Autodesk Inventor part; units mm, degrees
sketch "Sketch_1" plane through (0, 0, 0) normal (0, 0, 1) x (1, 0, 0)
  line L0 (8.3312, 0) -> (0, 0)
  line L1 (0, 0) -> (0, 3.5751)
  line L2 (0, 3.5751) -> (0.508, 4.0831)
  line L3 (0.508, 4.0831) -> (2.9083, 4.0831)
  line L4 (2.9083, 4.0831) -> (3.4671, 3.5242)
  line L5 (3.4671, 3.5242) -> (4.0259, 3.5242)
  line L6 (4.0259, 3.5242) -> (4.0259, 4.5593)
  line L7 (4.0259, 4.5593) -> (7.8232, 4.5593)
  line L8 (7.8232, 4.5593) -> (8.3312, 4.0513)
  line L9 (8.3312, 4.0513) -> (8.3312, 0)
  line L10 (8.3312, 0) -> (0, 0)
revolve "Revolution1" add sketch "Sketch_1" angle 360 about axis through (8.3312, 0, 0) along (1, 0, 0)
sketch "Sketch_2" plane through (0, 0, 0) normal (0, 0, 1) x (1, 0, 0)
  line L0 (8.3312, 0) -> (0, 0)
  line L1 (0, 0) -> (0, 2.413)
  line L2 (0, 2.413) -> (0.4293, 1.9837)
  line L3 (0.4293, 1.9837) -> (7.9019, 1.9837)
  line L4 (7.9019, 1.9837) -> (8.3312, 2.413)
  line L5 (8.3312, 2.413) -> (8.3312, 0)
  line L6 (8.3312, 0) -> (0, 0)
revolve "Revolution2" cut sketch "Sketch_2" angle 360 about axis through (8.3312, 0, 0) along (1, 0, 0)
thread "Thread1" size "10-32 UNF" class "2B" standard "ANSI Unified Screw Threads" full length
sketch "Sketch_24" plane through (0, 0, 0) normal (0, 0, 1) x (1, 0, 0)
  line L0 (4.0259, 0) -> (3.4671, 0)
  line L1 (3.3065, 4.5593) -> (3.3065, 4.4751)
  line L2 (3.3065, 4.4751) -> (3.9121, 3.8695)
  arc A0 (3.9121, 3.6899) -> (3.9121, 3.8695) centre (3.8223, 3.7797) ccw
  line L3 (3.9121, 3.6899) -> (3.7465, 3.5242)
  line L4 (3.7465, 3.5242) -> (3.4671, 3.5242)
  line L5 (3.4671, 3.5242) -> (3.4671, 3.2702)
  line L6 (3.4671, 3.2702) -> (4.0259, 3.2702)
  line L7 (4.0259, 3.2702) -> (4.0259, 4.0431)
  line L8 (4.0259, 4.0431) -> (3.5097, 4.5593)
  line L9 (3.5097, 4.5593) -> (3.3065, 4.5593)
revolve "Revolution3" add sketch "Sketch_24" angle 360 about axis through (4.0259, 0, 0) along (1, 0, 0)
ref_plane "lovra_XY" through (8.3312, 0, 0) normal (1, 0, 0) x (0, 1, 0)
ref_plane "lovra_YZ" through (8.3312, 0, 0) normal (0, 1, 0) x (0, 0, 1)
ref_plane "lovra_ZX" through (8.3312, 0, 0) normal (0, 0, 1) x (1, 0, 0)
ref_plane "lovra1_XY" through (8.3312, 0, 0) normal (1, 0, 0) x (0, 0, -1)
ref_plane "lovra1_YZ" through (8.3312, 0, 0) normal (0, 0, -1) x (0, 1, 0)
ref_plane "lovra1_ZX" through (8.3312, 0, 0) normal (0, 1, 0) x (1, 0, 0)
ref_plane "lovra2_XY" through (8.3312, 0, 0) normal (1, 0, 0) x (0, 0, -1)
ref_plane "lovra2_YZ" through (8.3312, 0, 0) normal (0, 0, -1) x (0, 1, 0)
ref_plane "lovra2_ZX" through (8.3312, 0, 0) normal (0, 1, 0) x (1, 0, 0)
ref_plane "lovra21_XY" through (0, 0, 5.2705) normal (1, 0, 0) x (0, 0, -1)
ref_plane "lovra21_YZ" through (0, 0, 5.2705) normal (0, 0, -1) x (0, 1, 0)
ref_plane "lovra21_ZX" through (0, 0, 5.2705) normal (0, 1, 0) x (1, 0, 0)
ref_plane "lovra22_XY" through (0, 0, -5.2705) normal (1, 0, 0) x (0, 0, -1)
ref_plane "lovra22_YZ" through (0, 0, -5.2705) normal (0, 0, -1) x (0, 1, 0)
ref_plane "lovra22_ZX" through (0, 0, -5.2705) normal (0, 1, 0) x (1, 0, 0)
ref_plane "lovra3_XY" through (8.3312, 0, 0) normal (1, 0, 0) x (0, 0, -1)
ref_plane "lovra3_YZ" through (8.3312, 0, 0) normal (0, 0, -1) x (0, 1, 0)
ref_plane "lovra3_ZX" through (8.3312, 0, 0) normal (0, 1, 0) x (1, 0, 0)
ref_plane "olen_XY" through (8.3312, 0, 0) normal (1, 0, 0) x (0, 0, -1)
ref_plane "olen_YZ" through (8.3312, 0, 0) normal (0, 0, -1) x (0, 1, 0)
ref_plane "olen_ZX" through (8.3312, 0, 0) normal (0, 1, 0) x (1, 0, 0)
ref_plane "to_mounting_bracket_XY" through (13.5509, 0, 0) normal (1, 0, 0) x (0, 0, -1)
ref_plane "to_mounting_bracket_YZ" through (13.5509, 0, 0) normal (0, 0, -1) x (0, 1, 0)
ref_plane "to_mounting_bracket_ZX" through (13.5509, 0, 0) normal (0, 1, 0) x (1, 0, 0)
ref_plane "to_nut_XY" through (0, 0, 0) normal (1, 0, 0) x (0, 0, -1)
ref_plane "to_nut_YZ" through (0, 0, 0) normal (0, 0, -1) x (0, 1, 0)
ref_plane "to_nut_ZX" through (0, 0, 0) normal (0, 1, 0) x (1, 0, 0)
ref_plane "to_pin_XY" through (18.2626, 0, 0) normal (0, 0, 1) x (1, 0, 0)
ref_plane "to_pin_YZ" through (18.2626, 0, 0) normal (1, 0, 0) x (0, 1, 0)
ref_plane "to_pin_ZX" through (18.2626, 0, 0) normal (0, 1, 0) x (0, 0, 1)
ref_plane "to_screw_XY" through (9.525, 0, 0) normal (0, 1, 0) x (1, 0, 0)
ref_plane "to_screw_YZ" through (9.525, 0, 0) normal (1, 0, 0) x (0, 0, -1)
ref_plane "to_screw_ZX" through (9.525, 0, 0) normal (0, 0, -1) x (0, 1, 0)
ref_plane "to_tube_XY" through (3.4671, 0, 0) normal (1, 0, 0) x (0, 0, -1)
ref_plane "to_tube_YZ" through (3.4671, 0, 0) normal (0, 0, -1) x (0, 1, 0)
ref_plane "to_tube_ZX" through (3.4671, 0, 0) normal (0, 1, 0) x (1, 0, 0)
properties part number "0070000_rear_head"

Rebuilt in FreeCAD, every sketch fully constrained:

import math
import FreeCAD as App
import Part
import Sketcher
Q = App.Units.Quantity


def add_polygon(sketch, points):
    """Adds a closed chain of lines whose ends are joined by coincident constraints."""
    first, n = sketch.GeometryCount, len(points)
    for a, b in zip(points, points[1:] + points[:1]):
        sketch.addGeometry(Part.LineSegment(App.Vector(*a, 0), App.Vector(*b, 0)), False)
    for i in range(n):
        sketch.addConstraint(Sketcher.Constraint("Coincident", first + i, 2, first + (i + 1) % n, 1))

doc = App.newDocument("Part")
body = doc.addObject("PartDesign::Body", "Body")

# Sketch on XY plane
sketch1 = body.newObject("Sketcher::SketchObject", "Sketch")
sketch1.AttachmentSupport = (doc.getObject("XY_Plane"), [""])
sketch1.MapMode = "FlatFace"
add_polygon(sketch1, [(0, 0), (8.3, 0), (8.3, 4.1), (7.8, 4.6), (4, 4.6), (4, 3.5), (3.5, 3.5), (2.9, 4.1), (0.5, 4.1), (0, 3.6)])  # lines 0-9
sketch1.addConstraint([
    Sketcher.Constraint("Horizontal", 0),
    Sketcher.Constraint("Vertical", 1),
    Sketcher.Constraint("Horizontal", 3),
    Sketcher.Constraint("Vertical", 4),
    Sketcher.Constraint("Horizontal", 5),
    Sketcher.Constraint("Horizontal", 7),
    Sketcher.Constraint("Vertical", 9),
    Sketcher.Constraint("Coincident", 9, 2, -1, 1),
    Sketcher.Constraint("Parallel", 2, 6),
    Sketcher.Constraint("Perpendicular", 6, 8),
    Sketcher.Constraint("Equal", 2, 8),
    Sketcher.Constraint("Angle", 2, Q("135 deg")),
    Sketcher.Constraint("DistanceX", 0, 1, 0, 2, Q("0.328 in")),
    Sketcher.Constraint("DistanceX", 5, 2, 5, 1, Q("0.022 in")),
    Sketcher.Constraint("DistanceX", -1, 1, 7, 2, Q("0.02 in")),
    Sketcher.Constraint("DistanceX", 3, 2, 3, 1, Q("0.1495 in")),
    Sketcher.Constraint("DistanceX", 7, 2, 7, 1, Q("0.0945 in")),
    Sketcher.Constraint("DistanceY", 1, 1, 1, 2, Q("0.1595 in")),
    Sketcher.Constraint("DistanceY", 4, 2, 4, 1, 1.035),
])
revolution = body.newObject("PartDesign::Revolution", "Revolution")
revolution.Profile = sketch1
revolution.ReferenceAxis = (sketch1, ["H_Axis"])
revolution.Angle = 360

# Sketch on XY plane
sketch2 = body.newObject("Sketcher::SketchObject", "Sketch001")
sketch2.AttachmentSupport = (doc.getObject("XY_Plane"), [""])
sketch2.MapMode = "FlatFace"
add_polygon(sketch2, [(0, 0), (8.3, 0), (8.3, 2.4), (7.9, 2), (0.4, 2), (0, 2.4)])  # lines 0-5
sketch2.addConstraint([
    Sketcher.Constraint("Horizontal", 0),
    Sketcher.Constraint("Vertical", 1),
    Sketcher.Constraint("Horizontal", 3),
    Sketcher.Constraint("Vertical", 5),
    Sketcher.Constraint("Coincident", 5, 2, -1, 1),
    Sketcher.Constraint("Perpendicular", 2, 4),
    Sketcher.Constraint("Horizontal", 1, 2, 4, 2),
    Sketcher.Constraint("Equal", 2, 4),
    Sketcher.Constraint("DistanceX", 0, 1, 0, 2, Q("0.328 in")),
    Sketcher.Constraint("DistanceY", 1, 1, 1, 2, Q("0.095 in")),
    Sketcher.Constraint("DistanceX", 3, 2, 3, 1, Q("0.2942 in")),
])
groove = body.newObject("PartDesign::Groove", "Groove")
groove.Profile = sketch2
groove.ReferenceAxis = (sketch2, ["H_Axis"])
groove.Angle = 360

# Sketch on XY plane
sketch3 = body.newObject("Sketcher::SketchObject", "Sketch002")
sketch3.AttachmentSupport = (doc.getObject("XY_Plane"), [""])
sketch3.MapMode = "FlatFace"
sketch3.addGeometry([
    Part.LineSegment(App.Vector(3.51, 4.56, 0), App.Vector(3.31, 4.56, 0)),  # 0
    Part.LineSegment(App.Vector(3.31, 4.56, 0), App.Vector(3.31, 4.48, 0)),  # 1
    Part.LineSegment(App.Vector(3.31, 4.48, 0), App.Vector(3.91, 3.87, 0)),  # 2
    Part.ArcOfCircle(Part.Circle(App.Vector(3.82, 3.78, 0), App.Vector(0, 0, 1), 0.13), math.radians(-45), math.radians(45)),  # 3
    Part.LineSegment(App.Vector(3.91, 3.69, 0), App.Vector(3.75, 3.52, 0)),  # 4
    Part.LineSegment(App.Vector(3.75, 3.52, 0), App.Vector(3.47, 3.52, 0)),  # 5
    Part.LineSegment(App.Vector(3.47, 3.52, 0), App.Vector(3.47, 3.27, 0)),  # 6
    Part.LineSegment(App.Vector(3.47, 3.27, 0), App.Vector(4.03, 3.27, 0)),  # 7
    Part.LineSegment(App.Vector(4.03, 3.27, 0), App.Vector(4.03, 4.04, 0)),  # 8
    Part.LineSegment(App.Vector(4.03, 4.04, 0), App.Vector(3.51, 4.56, 0)),  # 9
], False)
sketch3.addConstraint([
    Sketcher.Constraint("Coincident", 0, 2, 1, 1),
    Sketcher.Constraint("Coincident", 1, 2, 2, 1),
    Sketcher.Constraint("Tangent", 2, 2, 3, 2),
    Sketcher.Constraint("Tangent", 3, 1, 4, 1),
    Sketcher.Constraint("Coincident", 4, 2, 5, 1),
    Sketcher.Constraint("Coincident", 5, 2, 6, 1),
    Sketcher.Constraint("Coincident", 6, 2, 7, 1),
    Sketcher.Constraint("Coincident", 7, 2, 8, 1),
    Sketcher.Constraint("Coincident", 8, 2, 9, 1),
    Sketcher.Constraint("Coincident", 9, 2, 0, 1),
    Sketcher.Constraint("Horizontal", 0),
    Sketcher.Constraint("Vertical", 1),
    Sketcher.Constraint("Horizontal", 5),
    Sketcher.Constraint("Vertical", 6),
    Sketcher.Constraint("Horizontal", 7),
    Sketcher.Constraint("Vertical", 8),
    Sketcher.Constraint("Perpendicular", 2, 4),
    Sketcher.Constraint("Perpendicular", 4, 9),
    Sketcher.Constraint("Vertical", 2, 2, 3, 1),
    Sketcher.Constraint("Radius", 3, Q("0.005 in")),
    Sketcher.Constraint("DistanceY", 6, 2, 6, 1, Q("0.01 in")),
    Sketcher.Constraint("DistanceX", 0, 2, 0, 1, Q("0.008 in")),
    Sketcher.Constraint("DistanceX", 5, 2, 5, 1, Q("0.011 in")),
    Sketcher.Constraint("DistanceX", 7, 1, 7, 2, Q("0.022 in")),
    Sketcher.Constraint("DistanceY", 1, 2, 1, 1, 0.0842),
    Sketcher.Constraint("DistanceY", 8, 1, 8, 2, 0.773),
    Sketcher.Constraint("DistanceY", -1, 1, 3, 3, Q("0.1488 in")),
    Sketcher.Constraint("DistanceY", -1, 1, 0, 2, Q("0.1795 in")),
    Sketcher.Constraint("DistanceX", -1, 1, 4, 2, Q("0.1475 in")),
])
revolution2 = body.newObject("PartDesign::Revolution", "Revolution001")
revolution2.Profile = sketch3
revolution2.ReferenceAxis = (sketch3, ["H_Axis"])
revolution2.Angle = 360

doc.recompute()
